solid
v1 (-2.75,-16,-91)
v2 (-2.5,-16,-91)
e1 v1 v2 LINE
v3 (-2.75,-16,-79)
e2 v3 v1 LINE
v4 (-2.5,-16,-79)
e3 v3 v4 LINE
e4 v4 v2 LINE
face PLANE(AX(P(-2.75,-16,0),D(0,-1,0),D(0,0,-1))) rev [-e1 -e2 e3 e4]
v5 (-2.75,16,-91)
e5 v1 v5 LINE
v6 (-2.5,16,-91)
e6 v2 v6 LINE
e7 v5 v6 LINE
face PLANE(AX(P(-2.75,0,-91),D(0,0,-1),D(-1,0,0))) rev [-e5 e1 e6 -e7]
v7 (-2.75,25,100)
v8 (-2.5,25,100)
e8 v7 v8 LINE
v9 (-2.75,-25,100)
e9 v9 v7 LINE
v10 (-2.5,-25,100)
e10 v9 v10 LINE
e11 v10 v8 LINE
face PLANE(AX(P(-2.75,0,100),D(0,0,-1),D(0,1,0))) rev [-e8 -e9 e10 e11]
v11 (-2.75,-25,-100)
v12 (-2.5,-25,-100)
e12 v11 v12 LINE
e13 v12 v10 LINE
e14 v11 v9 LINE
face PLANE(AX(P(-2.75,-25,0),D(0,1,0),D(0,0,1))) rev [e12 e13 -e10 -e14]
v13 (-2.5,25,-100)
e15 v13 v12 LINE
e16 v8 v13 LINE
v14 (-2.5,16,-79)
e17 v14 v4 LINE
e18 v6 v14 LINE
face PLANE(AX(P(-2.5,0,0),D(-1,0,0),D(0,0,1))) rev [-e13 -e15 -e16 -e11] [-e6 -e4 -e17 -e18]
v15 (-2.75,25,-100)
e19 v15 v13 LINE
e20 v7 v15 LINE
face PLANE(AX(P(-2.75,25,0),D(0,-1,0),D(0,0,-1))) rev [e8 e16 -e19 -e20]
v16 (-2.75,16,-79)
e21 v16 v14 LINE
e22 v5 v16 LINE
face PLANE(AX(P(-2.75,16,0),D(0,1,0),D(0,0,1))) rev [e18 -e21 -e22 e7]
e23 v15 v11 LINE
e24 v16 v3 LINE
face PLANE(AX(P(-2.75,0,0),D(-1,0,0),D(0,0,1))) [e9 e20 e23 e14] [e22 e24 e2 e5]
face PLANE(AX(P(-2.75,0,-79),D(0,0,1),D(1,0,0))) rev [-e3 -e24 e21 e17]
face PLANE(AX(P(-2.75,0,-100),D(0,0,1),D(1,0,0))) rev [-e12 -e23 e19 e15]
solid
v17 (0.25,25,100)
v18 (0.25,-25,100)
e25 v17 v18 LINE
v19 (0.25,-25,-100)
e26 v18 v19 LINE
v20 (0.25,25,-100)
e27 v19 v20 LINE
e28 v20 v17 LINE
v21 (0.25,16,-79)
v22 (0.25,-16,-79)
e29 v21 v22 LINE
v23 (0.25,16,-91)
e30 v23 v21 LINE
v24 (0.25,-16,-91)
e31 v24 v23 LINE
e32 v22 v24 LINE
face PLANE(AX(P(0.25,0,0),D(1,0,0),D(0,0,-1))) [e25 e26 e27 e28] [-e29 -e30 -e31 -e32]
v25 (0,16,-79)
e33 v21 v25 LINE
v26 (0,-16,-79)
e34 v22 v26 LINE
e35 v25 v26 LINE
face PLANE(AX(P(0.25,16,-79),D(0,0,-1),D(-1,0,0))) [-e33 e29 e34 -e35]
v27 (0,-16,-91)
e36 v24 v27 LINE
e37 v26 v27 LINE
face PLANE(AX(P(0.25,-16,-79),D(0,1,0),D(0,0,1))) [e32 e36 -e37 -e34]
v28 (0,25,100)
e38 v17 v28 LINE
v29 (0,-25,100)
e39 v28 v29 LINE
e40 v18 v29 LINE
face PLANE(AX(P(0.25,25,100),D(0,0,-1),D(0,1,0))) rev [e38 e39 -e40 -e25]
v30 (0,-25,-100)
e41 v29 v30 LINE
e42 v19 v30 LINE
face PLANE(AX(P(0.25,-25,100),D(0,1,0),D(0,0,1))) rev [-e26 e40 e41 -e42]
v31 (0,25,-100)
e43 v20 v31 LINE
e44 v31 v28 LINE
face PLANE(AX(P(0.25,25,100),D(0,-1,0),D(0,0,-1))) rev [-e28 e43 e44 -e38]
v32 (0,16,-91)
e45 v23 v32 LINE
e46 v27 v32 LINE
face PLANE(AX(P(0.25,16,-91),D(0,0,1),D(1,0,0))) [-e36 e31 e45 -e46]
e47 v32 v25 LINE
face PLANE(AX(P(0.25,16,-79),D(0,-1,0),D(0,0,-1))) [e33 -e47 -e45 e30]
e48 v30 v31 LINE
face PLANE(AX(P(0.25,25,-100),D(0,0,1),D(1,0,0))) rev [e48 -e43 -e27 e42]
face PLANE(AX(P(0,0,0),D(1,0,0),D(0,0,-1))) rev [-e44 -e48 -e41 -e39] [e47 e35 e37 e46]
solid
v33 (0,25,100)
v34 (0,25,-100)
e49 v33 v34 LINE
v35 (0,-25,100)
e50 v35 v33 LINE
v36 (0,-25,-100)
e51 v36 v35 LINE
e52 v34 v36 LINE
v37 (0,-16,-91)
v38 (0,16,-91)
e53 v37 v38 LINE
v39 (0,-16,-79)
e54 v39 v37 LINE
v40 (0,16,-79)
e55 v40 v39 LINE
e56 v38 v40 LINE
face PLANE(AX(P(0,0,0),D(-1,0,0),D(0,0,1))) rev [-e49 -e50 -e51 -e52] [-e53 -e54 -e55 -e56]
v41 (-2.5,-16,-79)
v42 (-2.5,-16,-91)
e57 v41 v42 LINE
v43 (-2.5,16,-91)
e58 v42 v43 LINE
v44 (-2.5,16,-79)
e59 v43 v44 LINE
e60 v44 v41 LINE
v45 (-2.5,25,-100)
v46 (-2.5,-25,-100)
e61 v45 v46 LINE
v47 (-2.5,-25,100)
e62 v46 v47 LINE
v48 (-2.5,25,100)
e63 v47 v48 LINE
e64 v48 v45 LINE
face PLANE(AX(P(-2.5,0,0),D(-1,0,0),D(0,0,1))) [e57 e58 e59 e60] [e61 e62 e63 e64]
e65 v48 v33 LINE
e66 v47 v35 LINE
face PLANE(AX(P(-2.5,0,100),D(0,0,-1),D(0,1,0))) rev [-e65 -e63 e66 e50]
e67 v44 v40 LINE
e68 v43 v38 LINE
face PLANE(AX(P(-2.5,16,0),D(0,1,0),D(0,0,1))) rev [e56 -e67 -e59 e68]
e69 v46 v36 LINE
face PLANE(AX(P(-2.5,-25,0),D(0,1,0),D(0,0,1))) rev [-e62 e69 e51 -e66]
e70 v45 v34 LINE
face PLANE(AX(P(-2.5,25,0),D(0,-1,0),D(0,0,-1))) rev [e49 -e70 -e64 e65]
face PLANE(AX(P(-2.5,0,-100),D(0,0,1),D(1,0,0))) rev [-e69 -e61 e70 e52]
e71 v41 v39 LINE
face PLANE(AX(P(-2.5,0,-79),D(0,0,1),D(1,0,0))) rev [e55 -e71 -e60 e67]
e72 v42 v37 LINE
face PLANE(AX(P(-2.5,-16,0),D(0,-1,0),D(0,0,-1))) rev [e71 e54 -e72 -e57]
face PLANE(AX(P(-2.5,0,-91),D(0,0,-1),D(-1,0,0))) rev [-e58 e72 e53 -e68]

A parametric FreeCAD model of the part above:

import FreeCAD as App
import Part
import Sketcher
from FreeCAD import Vector
Q = App.Units.Quantity


def add_polygon(sketch, points):
    """Adds a closed chain of lines whose ends are joined by coincident constraints."""
    first, n = sketch.GeometryCount, len(points)
    for a, b in zip(points, points[1:] + points[:1]):
        sketch.addGeometry(Part.LineSegment(App.Vector(*a, 0), App.Vector(*b, 0)), False)
    for i in range(n):
        sketch.addConstraint(Sketcher.Constraint("Coincident", first + i, 2, first + (i + 1) % n, 1))

doc = App.newDocument("Part")
body = doc.addObject("PartDesign::Body", "Body")

sketch1 = doc.addObject("Sketcher::SketchObject", "Sketch")
body.addObject(sketch1)
sketch1.AttachmentSupport = (doc.YZ_Plane, [""])
sketch1.MapMode = "FlatFace"
add_polygon(sketch1, [(25, 100), (-25, 100), (-25, -100), (25, -100)])
add_polygon(sketch1, [(-16, -91), (-16, -79), (16, -79), (16, -91)])
sketch1.addConstraint([
    Sketcher.Constraint("Horizontal", 0),
    Sketcher.Constraint("Vertical", 1),
    Sketcher.Constraint("Horizontal", 2),
    Sketcher.Constraint("Vertical", 3),
    Sketcher.Constraint("Vertical", 4),
    Sketcher.Constraint("Horizontal", 5),
    Sketcher.Constraint("Vertical", 6),
    Sketcher.Constraint("Horizontal", 7),
    Sketcher.Constraint("Symmetric", 0, 2, 2, 2, -1, 1),
    Sketcher.Constraint("DistanceX", 0, 2, 0, 1, Q("50 mm")),
    Sketcher.Constraint("DistanceX", 5, 1, 5, 2, Q("32 mm")),
    Sketcher.Constraint("DistanceY", 1, 2, 1, 1, Q("200 mm")),
    Sketcher.Constraint("DistanceY", 4, 1, 4, 2, Q("12 mm")),
    Sketcher.Constraint("DistanceX", 4, 2, -1, 1, Q("16 mm")),
    Sketcher.Constraint("DistanceY", 4, 2, -1, 1, Q("79 mm")),
])
pad1 = doc.addObject("PartDesign::Pad", "Pad")
body.addObject(pad1)
pad1.Profile = sketch1
pad1.Length = 0.25
body2 = doc.addObject("PartDesign::Body", "Body001")

sketch2 = doc.addObject("Sketcher::SketchObject", "Sketch001")
body2.addObject(sketch2)
sketch2.AttachmentSupport = (doc.getObject("YZ_Plane001"), [""])
sketch2.MapMode = "FlatFace"
add_polygon(sketch2, [(25, -100), (-25, -100), (-25, 100), (25, 100)])
add_polygon(sketch2, [(-16, -79), (-16, -91), (16, -91), (16, -79)])
sketch2.addConstraint([
    Sketcher.Constraint("Horizontal", 0),
    Sketcher.Constraint("Vertical", 1),
    Sketcher.Constraint("Horizontal", 2),
    Sketcher.Constraint("Vertical", 3),
    Sketcher.Constraint("Vertical", 4),
    Sketcher.Constraint("Horizontal", 5),
    Sketcher.Constraint("Vertical", 6),
    Sketcher.Constraint("Horizontal", 7),
    Sketcher.Constraint("Symmetric", 0, 2, 2, 2, -1, 1),
    Sketcher.Constraint("DistanceX", 0, 2, 0, 1, Q("50 mm")),
    Sketcher.Constraint("DistanceX", 5, 1, 5, 2, Q("32 mm")),
    Sketcher.Constraint("DistanceY", 1, 1, 1, 2, Q("200 mm")),
    Sketcher.Constraint("DistanceY", 4, 2, 4, 1, Q("12 mm")),
    Sketcher.Constraint("DistanceX", 4, 2, -1, 1, Q("16 mm")),
    Sketcher.Constraint("DistanceY", 4, 2, -1, 1, Q("91 mm")),
])
pad2 = doc.addObject("PartDesign::Pad", "Pad001")
body2.addObject(pad2)
pad2.Profile = sketch2
pad2.Length = 2.5
pad2.Reversed = True
body3 = doc.addObject("PartDesign::Body", "Body002")

sketch3 = doc.addObject("Sketcher::SketchObject", "Sketch002")
body3.addObject(sketch3)
sketch3.AttachmentSupport = (doc.getObject("YZ_Plane002"), [""])
sketch3.MapMode = "FlatFace"
sketch3.AttachmentOffset = App.Placement(Vector(0, 0, -2.5), App.Rotation())
add_polygon(sketch3, [(25, -100), (-25, -100), (-25, 100), (25, 100)])
add_polygon(sketch3, [(-16, -79), (-16, -91), (16, -91), (16, -79)])
sketch3.addConstraint([
    Sketcher.Constraint("Horizontal", 0),
    Sketcher.Constraint("Vertical", 1),
    Sketcher.Constraint("Horizontal", 2),
    Sketcher.Constraint("Vertical", 3),
    Sketcher.Constraint("Vertical", 4),
    Sketcher.Constraint("Horizontal", 5),
    Sketcher.Constraint("Vertical", 6),
    Sketcher.Constraint("Horizontal", 7),
    Sketcher.Constraint("Symmetric", 0, 2, 2, 2, -1, 1),
    Sketcher.Constraint("DistanceX", 0, 2, 0, 1, Q("50 mm")),
    Sketcher.Constraint("DistanceX", 5, 1, 5, 2, Q("32 mm")),
    Sketcher.Constraint("DistanceY", 1, 1, 1, 2, Q("200 mm")),
    Sketcher.Constraint("DistanceY", 4, 2, 4, 1, Q("12 mm")),
    Sketcher.Constraint("DistanceX", 4, 2, -1, 1, Q("16 mm")),
    Sketcher.Constraint("DistanceY", 4, 2, -1, 1, Q("91 mm")),
])
pad3 = doc.addObject("PartDesign::Pad", "Pad002")
body3.addObject(pad3)
pad3.Profile = sketch3
pad3.Length = 0.25
pad3.Reversed = True

doc.recompute()
